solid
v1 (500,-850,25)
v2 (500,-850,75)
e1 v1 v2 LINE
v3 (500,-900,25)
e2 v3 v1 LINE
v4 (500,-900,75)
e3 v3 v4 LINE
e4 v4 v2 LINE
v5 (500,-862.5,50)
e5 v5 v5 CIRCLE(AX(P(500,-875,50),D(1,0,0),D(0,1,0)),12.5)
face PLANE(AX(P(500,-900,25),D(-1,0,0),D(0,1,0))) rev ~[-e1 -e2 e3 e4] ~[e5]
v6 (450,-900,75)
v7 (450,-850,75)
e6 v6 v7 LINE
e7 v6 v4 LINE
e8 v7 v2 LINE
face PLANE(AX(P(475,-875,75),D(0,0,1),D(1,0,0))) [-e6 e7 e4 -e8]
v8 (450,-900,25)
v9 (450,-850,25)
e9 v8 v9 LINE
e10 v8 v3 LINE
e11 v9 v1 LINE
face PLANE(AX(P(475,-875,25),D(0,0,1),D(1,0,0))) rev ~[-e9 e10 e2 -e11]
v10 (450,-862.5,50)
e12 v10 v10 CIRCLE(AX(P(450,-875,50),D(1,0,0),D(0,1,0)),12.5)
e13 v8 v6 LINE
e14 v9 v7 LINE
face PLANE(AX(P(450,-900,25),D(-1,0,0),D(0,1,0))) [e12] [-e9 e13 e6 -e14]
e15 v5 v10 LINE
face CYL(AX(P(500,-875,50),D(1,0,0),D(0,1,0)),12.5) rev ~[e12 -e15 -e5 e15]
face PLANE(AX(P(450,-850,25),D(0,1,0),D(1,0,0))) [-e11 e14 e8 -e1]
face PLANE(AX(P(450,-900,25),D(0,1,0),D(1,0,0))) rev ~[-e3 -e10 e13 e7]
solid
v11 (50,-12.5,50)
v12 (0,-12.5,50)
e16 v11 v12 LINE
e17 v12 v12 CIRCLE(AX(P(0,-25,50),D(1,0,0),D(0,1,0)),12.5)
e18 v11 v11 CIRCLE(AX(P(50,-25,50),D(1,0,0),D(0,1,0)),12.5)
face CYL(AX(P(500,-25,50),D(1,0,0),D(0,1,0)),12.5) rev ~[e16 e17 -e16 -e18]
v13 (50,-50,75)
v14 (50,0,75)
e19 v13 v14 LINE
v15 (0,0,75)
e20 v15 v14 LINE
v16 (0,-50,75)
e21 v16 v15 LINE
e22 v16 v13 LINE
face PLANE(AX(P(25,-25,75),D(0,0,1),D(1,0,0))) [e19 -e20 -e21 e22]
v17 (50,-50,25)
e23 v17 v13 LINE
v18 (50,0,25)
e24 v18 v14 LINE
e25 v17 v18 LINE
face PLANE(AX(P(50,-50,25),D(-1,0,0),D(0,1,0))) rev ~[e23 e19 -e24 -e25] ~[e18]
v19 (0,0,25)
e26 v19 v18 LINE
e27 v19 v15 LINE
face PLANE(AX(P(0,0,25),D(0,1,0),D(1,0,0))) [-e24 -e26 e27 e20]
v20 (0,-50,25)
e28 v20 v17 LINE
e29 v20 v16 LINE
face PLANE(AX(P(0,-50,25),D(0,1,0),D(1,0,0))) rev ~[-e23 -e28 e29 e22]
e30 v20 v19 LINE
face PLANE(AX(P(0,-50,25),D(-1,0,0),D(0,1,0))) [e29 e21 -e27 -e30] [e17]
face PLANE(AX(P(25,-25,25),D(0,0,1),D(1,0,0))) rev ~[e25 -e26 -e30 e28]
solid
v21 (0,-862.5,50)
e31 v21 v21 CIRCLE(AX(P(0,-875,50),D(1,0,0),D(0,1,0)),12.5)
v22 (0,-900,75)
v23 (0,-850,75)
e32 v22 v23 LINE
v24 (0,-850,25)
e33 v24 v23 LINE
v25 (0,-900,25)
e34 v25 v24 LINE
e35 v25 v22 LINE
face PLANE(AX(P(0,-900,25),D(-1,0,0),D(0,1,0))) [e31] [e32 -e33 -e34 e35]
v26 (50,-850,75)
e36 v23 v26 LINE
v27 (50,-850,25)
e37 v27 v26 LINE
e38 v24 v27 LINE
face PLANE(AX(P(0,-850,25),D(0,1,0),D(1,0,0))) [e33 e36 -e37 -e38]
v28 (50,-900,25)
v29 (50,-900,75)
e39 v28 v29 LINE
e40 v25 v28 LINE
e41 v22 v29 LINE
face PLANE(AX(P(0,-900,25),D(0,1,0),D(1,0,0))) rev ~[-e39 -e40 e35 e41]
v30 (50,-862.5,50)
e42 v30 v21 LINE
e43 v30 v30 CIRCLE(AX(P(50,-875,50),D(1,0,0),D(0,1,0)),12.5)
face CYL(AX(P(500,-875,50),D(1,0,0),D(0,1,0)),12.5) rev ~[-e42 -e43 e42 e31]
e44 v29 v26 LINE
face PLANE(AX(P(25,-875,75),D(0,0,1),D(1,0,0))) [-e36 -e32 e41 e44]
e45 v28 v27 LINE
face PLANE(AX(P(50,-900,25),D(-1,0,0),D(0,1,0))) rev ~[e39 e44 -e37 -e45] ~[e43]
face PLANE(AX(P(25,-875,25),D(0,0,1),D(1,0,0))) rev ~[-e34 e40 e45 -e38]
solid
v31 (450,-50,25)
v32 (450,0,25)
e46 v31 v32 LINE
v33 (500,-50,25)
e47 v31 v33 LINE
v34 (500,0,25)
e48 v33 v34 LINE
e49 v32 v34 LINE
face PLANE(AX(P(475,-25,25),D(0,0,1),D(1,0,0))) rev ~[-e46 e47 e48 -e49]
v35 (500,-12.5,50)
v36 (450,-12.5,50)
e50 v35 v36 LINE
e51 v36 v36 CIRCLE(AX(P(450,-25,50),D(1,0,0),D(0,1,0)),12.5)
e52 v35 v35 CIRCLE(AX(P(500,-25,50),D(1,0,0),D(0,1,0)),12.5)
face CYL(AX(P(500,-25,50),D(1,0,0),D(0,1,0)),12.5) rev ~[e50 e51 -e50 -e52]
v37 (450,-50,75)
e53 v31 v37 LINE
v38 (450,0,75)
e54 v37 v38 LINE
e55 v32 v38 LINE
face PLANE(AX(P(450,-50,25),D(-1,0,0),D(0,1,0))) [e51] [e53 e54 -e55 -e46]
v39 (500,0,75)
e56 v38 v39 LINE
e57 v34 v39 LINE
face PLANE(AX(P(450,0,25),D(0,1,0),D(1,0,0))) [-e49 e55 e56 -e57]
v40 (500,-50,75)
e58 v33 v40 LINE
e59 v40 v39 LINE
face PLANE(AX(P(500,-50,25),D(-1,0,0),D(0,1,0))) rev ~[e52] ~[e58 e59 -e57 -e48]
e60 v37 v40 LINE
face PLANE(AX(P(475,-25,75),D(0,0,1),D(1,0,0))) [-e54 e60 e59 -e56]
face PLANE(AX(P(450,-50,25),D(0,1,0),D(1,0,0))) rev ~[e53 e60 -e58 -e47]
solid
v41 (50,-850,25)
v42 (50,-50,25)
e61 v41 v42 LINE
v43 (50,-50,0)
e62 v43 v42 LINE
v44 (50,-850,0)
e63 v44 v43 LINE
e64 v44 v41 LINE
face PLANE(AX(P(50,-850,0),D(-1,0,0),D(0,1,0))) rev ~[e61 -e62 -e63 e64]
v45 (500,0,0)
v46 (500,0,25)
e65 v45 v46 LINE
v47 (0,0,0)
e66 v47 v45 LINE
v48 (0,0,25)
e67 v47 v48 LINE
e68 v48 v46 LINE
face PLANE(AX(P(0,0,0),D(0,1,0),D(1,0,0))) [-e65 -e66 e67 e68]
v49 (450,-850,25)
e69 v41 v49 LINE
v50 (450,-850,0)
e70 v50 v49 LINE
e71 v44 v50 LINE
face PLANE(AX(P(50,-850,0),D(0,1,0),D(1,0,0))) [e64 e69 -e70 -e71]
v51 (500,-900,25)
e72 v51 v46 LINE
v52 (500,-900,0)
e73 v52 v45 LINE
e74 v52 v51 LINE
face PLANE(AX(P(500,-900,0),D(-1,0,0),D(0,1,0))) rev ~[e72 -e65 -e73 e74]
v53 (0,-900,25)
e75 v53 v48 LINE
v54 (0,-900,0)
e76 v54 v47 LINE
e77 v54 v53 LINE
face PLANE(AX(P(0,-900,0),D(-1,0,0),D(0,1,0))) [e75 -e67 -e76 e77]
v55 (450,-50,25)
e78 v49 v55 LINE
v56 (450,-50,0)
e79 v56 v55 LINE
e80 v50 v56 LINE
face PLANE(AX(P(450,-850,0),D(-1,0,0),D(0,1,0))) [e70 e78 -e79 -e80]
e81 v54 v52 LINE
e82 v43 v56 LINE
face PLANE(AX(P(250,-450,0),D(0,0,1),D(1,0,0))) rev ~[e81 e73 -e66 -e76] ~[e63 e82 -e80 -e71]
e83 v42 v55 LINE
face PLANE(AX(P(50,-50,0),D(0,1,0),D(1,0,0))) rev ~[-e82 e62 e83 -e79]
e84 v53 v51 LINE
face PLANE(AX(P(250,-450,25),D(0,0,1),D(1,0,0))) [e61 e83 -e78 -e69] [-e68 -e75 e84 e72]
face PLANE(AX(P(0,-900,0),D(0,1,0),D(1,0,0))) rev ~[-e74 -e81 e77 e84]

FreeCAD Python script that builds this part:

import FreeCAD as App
import Part
import Sketcher

doc = App.newDocument("Part")
params = doc.addObject("Spreadsheet::Sheet", "Params")
for row, (alias, value) in enumerate([
    ("sketch1_width", "500 mm"),
    ("sketch1_width2", "400 mm"),
    ("sketch1_height", "900 mm"),
    ("sketch1_height2", "800 mm"),
    ("pad1_length", "25 mm"),
    ("sketch2_width", "50 mm"),
    ("pad2_length", "50 mm"),
    ("sketch3_diameter", "25 mm"),
    ("sketch4_diameter", "25 mm"),
], start=1):
    params.set(f"A{row}", alias)
    params.set(f"B{row}", "=" + value)
    params.setAlias(f"B{row}", alias)

body = doc.addObject("PartDesign::Body", "Body")

# Sketch on XY plane
sketch1 = body.newObject("Sketcher::SketchObject", "Sketch")
sketch1.AttachmentSupport = (doc.getObject("XY_Plane"), [""])
sketch1.MapMode = "FlatFace"
sketch1.addGeometry([
    Part.LineSegment(App.Vector(0, 0, 0), App.Vector(0, -900, 0)),  # 0
    Part.LineSegment(App.Vector(0, -900, 0), App.Vector(500, -900, 0)),  # 1
    Part.LineSegment(App.Vector(500, -900, 0), App.Vector(500, 0, 0)),  # 2
    Part.LineSegment(App.Vector(500, 0, 0), App.Vector(0, 0, 0)),  # 3
    Part.LineSegment(App.Vector(450, -850, 0), App.Vector(50, -850, 0)),  # 4
    Part.LineSegment(App.Vector(50, -850, 0), App.Vector(50, -50, 0)),  # 5
    Part.LineSegment(App.Vector(50, -50, 0), App.Vector(450, -50, 0)),  # 6
    Part.LineSegment(App.Vector(450, -50, 0), App.Vector(450, -850, 0)),  # 7
], False)
sketch1.addConstraint([
    Sketcher.Constraint("Coincident", 0, 2, 1, 1),
    Sketcher.Constraint("Coincident", 1, 2, 2, 1),
    Sketcher.Constraint("Coincident", 2, 2, 3, 1),
    Sketcher.Constraint("Coincident", 3, 2, 0, 1),
    Sketcher.Constraint("Coincident", 4, 2, 5, 1),
    Sketcher.Constraint("Coincident", 5, 2, 6, 1),
    Sketcher.Constraint("Coincident", 6, 2, 7, 1),
    Sketcher.Constraint("Coincident", 7, 2, 4, 1),
    Sketcher.Constraint("Vertical", 0),
    Sketcher.Constraint("Horizontal", 1),
    Sketcher.Constraint("Vertical", 2),
    Sketcher.Constraint("Horizontal", 3),
    Sketcher.Constraint("Horizontal", 4),
    Sketcher.Constraint("Vertical", 5),
    Sketcher.Constraint("Horizontal", 6),
    Sketcher.Constraint("Vertical", 7),
    Sketcher.Constraint("Coincident", 3, 2, -1, 1),
    Sketcher.Constraint("DistanceX", 1, 1, 1, 2, 500.0),
    Sketcher.Constraint("DistanceX", 4, 2, 4, 1, 400.0),
    Sketcher.Constraint("DistanceY", 0, 2, 0, 1, 900.0),
    Sketcher.Constraint("DistanceY", 5, 1, 5, 2, 800.0),
    Sketcher.Constraint("DistanceX", -1, 1, 4, 2, 50.0),
    Sketcher.Constraint("DistanceY", 4, 2, -1, 1, 850.0),
])
sketch1.setExpression("Constraints[17]", "Params.sketch1_width")
sketch1.setExpression("Constraints[18]", "Params.sketch1_width2")
sketch1.setExpression("Constraints[19]", "Params.sketch1_height")
sketch1.setExpression("Constraints[20]", "Params.sketch1_height2")
pad1 = body.newObject("PartDesign::Pad", "Pad")
pad1.Profile = sketch1
pad1.setExpression("Length", "Params.pad1_length")
body2 = doc.addObject("PartDesign::Body", "Body001")
body2.AllowCompound = True

# Sketch on XY plane
sketch2 = body2.newObject("Sketcher::SketchObject", "Sketch001")
sketch2.AttachmentSupport = (doc.getObject("XY_Plane001"), [""])
sketch2.MapMode = "FlatFace"
sketch2.AttachmentOffset = App.Placement(App.Vector(0, 0, 25), App.Rotation())
sketch2.addGeometry([
    Part.LineSegment(App.Vector(0, -850, 0), App.Vector(0, -900, 0)),  # 0
    Part.LineSegment(App.Vector(0, -900, 0), App.Vector(50, -900, 0)),  # 1
    Part.LineSegment(App.Vector(50, -900, 0), App.Vector(50, -850, 0)),  # 2
    Part.LineSegment(App.Vector(50, -850, 0), App.Vector(0, -850, 0)),  # 3
    Part.LineSegment(App.Vector(0, 0, 0), App.Vector(0, -50, 0)),  # 4
    Part.LineSegment(App.Vector(0, -50, 0), App.Vector(50, -50, 0)),  # 5
    Part.LineSegment(App.Vector(50, -50, 0), App.Vector(50, 0, 0)),  # 6
    Part.LineSegment(App.Vector(50, 0, 0), App.Vector(0, 0, 0)),  # 7
    Part.LineSegment(App.Vector(450, 0, 0), App.Vector(450, -50, 0)),  # 8
    Part.LineSegment(App.Vector(450, -50, 0), App.Vector(500, -50, 0)),  # 9
    Part.LineSegment(App.Vector(500, -50, 0), App.Vector(500, 0, 0)),  # 10
    Part.LineSegment(App.Vector(500, 0, 0), App.Vector(450, 0, 0)),  # 11
    Part.LineSegment(App.Vector(450, -850, 0), App.Vector(450, -900, 0)),  # 12
    Part.LineSegment(App.Vector(450, -900, 0), App.Vector(500, -900, 0)),  # 13
    Part.LineSegment(App.Vector(500, -900, 0), App.Vector(500, -850, 0)),  # 14
    Part.LineSegment(App.Vector(500, -850, 0), App.Vector(450, -850, 0)),  # 15
], False)
sketch2.addConstraint([
    Sketcher.Constraint("Coincident", 0, 2, 1, 1),
    Sketcher.Constraint("Coincident", 1, 2, 2, 1),
    Sketcher.Constraint("Coincident", 2, 2, 3, 1),
    Sketcher.Constraint("Coincident", 3, 2, 0, 1),
    Sketcher.Constraint("Coincident", 4, 2, 5, 1),
    Sketcher.Constraint("Coincident", 5, 2, 6, 1),
    Sketcher.Constraint("Coincident", 6, 2, 7, 1),
    Sketcher.Constraint("Coincident", 7, 2, 4, 1),
    Sketcher.Constraint("Coincident", 8, 2, 9, 1),
    Sketcher.Constraint("Coincident", 9, 2, 10, 1),
    Sketcher.Constraint("Coincident", 10, 2, 11, 1),
    Sketcher.Constraint("Coincident", 11, 2, 8, 1),
    Sketcher.Constraint("Coincident", 12, 2, 13, 1),
    Sketcher.Constraint("Coincident", 13, 2, 14, 1),
    Sketcher.Constraint("Coincident", 14, 2, 15, 1),
    Sketcher.Constraint("Coincident", 15, 2, 12, 1),
    Sketcher.Constraint("Vertical", 0),
    Sketcher.Constraint("Horizontal", 1),
    Sketcher.Constraint("Vertical", 2),
    Sketcher.Constraint("Horizontal", 3),
    Sketcher.Constraint("Vertical", 4),
    Sketcher.Constraint("Horizontal", 5),
    Sketcher.Constraint("Vertical", 6),
    Sketcher.Constraint("Horizontal", 7),
    Sketcher.Constraint("Vertical", 8),
    Sketcher.Constraint("Horizontal", 9),
    Sketcher.Constraint("Vertical", 10),
    Sketcher.Constraint("Horizontal", 11),
    Sketcher.Constraint("Vertical", 12),
    Sketcher.Constraint("Horizontal", 13),
    Sketcher.Constraint("Vertical", 14),
    Sketcher.Constraint("Horizontal", 15),
    Sketcher.Constraint("Coincident", 7, 2, -1, 1),
    Sketcher.Constraint("PointOnObject", 0, 2, -2),
    Sketcher.Constraint("PointOnObject", 10, 2, -1),
    Sketcher.Constraint("Horizontal", 5, 2, 8, 2),
    Sketcher.Constraint("Horizontal", 1, 2, 12, 2),
    Sketcher.Constraint("Horizontal", 3, 2, 14, 2),
    Sketcher.Constraint("Vertical", 2, 2, 5, 2),
    Sketcher.Constraint("Vertical", 11, 2, 12, 2),
    Sketcher.Constraint("Vertical", 10, 2, 13, 2),
    Sketcher.Constraint("Equal", 7, 9),
    Sketcher.Constraint("Equal", 15, 0),
    Sketcher.Constraint("Equal", 2, 4),
    Sketcher.Constraint("DistanceX", 1, 1, 1, 2, 50.0),
    Sketcher.Constraint("DistanceY", 0, 2, -1, 1, 900.0),
    Sketcher.Constraint("DistanceX", -1, 1, 8, 2, 450.0),
])
sketch2.setExpression("Constraints[44]", "Params.sketch2_width")
pad2 = body2.newObject("PartDesign::Pad", "Pad001")
pad2.Profile = sketch2
pad2.setExpression("Length", "Params.pad2_length")

# Sketch on YZ plane
sketch3 = body2.newObject("Sketcher::SketchObject", "Sketch002")
sketch3.AttachmentSupport = (doc.getObject("YZ_Plane001"), [""])
sketch3.MapMode = "FlatFace"
sketch3.AttachmentOffset = App.Placement(App.Vector(0, 0, 500), App.Rotation())
sketch3.addGeometry(Part.Circle(App.Vector(-875, 50, 0), App.Vector(0, 0, 1), 12), False)
sketch3.addConstraint([
    Sketcher.Constraint("Diameter", 0, 25.0),
    Sketcher.Constraint("DistanceX", 0, 3, -1, 1, 875.0),
    Sketcher.Constraint("DistanceY", -1, 1, 0, 3, 50.0),
])
sketch3.setExpression("Constraints[0]", "Params.sketch3_diameter")
pocket1 = body2.newObject("PartDesign::Pocket", "Pocket")
pocket1.Profile = sketch3
pocket1.Type = "ThroughAll"

# Sketch on YZ plane
sketch4 = body2.newObject("Sketcher::SketchObject", "Sketch003")
sketch4.AttachmentSupport = (doc.getObject("YZ_Plane001"), [""])
sketch4.MapMode = "FlatFace"
sketch4.AttachmentOffset = App.Placement(App.Vector(0, 0, 500), App.Rotation())
sketch4.addGeometry(Part.Circle(App.Vector(-25, 50, 0), App.Vector(0, 0, 1), 12), False)
sketch4.addConstraint([
    Sketcher.Constraint("Diameter", 0, 25.0),
    Sketcher.Constraint("DistanceX", 0, 3, -1, 1, 25.0),
    Sketcher.Constraint("DistanceY", -1, 1, 0, 3, 50.0),
])
sketch4.setExpression("Constraints[0]", "Params.sketch4_diameter")
pocket2 = body2.newObject("PartDesign::Pocket", "Pocket001")
pocket2.Profile = sketch4
pocket2.Type = "ThroughAll"

doc.recompute()
